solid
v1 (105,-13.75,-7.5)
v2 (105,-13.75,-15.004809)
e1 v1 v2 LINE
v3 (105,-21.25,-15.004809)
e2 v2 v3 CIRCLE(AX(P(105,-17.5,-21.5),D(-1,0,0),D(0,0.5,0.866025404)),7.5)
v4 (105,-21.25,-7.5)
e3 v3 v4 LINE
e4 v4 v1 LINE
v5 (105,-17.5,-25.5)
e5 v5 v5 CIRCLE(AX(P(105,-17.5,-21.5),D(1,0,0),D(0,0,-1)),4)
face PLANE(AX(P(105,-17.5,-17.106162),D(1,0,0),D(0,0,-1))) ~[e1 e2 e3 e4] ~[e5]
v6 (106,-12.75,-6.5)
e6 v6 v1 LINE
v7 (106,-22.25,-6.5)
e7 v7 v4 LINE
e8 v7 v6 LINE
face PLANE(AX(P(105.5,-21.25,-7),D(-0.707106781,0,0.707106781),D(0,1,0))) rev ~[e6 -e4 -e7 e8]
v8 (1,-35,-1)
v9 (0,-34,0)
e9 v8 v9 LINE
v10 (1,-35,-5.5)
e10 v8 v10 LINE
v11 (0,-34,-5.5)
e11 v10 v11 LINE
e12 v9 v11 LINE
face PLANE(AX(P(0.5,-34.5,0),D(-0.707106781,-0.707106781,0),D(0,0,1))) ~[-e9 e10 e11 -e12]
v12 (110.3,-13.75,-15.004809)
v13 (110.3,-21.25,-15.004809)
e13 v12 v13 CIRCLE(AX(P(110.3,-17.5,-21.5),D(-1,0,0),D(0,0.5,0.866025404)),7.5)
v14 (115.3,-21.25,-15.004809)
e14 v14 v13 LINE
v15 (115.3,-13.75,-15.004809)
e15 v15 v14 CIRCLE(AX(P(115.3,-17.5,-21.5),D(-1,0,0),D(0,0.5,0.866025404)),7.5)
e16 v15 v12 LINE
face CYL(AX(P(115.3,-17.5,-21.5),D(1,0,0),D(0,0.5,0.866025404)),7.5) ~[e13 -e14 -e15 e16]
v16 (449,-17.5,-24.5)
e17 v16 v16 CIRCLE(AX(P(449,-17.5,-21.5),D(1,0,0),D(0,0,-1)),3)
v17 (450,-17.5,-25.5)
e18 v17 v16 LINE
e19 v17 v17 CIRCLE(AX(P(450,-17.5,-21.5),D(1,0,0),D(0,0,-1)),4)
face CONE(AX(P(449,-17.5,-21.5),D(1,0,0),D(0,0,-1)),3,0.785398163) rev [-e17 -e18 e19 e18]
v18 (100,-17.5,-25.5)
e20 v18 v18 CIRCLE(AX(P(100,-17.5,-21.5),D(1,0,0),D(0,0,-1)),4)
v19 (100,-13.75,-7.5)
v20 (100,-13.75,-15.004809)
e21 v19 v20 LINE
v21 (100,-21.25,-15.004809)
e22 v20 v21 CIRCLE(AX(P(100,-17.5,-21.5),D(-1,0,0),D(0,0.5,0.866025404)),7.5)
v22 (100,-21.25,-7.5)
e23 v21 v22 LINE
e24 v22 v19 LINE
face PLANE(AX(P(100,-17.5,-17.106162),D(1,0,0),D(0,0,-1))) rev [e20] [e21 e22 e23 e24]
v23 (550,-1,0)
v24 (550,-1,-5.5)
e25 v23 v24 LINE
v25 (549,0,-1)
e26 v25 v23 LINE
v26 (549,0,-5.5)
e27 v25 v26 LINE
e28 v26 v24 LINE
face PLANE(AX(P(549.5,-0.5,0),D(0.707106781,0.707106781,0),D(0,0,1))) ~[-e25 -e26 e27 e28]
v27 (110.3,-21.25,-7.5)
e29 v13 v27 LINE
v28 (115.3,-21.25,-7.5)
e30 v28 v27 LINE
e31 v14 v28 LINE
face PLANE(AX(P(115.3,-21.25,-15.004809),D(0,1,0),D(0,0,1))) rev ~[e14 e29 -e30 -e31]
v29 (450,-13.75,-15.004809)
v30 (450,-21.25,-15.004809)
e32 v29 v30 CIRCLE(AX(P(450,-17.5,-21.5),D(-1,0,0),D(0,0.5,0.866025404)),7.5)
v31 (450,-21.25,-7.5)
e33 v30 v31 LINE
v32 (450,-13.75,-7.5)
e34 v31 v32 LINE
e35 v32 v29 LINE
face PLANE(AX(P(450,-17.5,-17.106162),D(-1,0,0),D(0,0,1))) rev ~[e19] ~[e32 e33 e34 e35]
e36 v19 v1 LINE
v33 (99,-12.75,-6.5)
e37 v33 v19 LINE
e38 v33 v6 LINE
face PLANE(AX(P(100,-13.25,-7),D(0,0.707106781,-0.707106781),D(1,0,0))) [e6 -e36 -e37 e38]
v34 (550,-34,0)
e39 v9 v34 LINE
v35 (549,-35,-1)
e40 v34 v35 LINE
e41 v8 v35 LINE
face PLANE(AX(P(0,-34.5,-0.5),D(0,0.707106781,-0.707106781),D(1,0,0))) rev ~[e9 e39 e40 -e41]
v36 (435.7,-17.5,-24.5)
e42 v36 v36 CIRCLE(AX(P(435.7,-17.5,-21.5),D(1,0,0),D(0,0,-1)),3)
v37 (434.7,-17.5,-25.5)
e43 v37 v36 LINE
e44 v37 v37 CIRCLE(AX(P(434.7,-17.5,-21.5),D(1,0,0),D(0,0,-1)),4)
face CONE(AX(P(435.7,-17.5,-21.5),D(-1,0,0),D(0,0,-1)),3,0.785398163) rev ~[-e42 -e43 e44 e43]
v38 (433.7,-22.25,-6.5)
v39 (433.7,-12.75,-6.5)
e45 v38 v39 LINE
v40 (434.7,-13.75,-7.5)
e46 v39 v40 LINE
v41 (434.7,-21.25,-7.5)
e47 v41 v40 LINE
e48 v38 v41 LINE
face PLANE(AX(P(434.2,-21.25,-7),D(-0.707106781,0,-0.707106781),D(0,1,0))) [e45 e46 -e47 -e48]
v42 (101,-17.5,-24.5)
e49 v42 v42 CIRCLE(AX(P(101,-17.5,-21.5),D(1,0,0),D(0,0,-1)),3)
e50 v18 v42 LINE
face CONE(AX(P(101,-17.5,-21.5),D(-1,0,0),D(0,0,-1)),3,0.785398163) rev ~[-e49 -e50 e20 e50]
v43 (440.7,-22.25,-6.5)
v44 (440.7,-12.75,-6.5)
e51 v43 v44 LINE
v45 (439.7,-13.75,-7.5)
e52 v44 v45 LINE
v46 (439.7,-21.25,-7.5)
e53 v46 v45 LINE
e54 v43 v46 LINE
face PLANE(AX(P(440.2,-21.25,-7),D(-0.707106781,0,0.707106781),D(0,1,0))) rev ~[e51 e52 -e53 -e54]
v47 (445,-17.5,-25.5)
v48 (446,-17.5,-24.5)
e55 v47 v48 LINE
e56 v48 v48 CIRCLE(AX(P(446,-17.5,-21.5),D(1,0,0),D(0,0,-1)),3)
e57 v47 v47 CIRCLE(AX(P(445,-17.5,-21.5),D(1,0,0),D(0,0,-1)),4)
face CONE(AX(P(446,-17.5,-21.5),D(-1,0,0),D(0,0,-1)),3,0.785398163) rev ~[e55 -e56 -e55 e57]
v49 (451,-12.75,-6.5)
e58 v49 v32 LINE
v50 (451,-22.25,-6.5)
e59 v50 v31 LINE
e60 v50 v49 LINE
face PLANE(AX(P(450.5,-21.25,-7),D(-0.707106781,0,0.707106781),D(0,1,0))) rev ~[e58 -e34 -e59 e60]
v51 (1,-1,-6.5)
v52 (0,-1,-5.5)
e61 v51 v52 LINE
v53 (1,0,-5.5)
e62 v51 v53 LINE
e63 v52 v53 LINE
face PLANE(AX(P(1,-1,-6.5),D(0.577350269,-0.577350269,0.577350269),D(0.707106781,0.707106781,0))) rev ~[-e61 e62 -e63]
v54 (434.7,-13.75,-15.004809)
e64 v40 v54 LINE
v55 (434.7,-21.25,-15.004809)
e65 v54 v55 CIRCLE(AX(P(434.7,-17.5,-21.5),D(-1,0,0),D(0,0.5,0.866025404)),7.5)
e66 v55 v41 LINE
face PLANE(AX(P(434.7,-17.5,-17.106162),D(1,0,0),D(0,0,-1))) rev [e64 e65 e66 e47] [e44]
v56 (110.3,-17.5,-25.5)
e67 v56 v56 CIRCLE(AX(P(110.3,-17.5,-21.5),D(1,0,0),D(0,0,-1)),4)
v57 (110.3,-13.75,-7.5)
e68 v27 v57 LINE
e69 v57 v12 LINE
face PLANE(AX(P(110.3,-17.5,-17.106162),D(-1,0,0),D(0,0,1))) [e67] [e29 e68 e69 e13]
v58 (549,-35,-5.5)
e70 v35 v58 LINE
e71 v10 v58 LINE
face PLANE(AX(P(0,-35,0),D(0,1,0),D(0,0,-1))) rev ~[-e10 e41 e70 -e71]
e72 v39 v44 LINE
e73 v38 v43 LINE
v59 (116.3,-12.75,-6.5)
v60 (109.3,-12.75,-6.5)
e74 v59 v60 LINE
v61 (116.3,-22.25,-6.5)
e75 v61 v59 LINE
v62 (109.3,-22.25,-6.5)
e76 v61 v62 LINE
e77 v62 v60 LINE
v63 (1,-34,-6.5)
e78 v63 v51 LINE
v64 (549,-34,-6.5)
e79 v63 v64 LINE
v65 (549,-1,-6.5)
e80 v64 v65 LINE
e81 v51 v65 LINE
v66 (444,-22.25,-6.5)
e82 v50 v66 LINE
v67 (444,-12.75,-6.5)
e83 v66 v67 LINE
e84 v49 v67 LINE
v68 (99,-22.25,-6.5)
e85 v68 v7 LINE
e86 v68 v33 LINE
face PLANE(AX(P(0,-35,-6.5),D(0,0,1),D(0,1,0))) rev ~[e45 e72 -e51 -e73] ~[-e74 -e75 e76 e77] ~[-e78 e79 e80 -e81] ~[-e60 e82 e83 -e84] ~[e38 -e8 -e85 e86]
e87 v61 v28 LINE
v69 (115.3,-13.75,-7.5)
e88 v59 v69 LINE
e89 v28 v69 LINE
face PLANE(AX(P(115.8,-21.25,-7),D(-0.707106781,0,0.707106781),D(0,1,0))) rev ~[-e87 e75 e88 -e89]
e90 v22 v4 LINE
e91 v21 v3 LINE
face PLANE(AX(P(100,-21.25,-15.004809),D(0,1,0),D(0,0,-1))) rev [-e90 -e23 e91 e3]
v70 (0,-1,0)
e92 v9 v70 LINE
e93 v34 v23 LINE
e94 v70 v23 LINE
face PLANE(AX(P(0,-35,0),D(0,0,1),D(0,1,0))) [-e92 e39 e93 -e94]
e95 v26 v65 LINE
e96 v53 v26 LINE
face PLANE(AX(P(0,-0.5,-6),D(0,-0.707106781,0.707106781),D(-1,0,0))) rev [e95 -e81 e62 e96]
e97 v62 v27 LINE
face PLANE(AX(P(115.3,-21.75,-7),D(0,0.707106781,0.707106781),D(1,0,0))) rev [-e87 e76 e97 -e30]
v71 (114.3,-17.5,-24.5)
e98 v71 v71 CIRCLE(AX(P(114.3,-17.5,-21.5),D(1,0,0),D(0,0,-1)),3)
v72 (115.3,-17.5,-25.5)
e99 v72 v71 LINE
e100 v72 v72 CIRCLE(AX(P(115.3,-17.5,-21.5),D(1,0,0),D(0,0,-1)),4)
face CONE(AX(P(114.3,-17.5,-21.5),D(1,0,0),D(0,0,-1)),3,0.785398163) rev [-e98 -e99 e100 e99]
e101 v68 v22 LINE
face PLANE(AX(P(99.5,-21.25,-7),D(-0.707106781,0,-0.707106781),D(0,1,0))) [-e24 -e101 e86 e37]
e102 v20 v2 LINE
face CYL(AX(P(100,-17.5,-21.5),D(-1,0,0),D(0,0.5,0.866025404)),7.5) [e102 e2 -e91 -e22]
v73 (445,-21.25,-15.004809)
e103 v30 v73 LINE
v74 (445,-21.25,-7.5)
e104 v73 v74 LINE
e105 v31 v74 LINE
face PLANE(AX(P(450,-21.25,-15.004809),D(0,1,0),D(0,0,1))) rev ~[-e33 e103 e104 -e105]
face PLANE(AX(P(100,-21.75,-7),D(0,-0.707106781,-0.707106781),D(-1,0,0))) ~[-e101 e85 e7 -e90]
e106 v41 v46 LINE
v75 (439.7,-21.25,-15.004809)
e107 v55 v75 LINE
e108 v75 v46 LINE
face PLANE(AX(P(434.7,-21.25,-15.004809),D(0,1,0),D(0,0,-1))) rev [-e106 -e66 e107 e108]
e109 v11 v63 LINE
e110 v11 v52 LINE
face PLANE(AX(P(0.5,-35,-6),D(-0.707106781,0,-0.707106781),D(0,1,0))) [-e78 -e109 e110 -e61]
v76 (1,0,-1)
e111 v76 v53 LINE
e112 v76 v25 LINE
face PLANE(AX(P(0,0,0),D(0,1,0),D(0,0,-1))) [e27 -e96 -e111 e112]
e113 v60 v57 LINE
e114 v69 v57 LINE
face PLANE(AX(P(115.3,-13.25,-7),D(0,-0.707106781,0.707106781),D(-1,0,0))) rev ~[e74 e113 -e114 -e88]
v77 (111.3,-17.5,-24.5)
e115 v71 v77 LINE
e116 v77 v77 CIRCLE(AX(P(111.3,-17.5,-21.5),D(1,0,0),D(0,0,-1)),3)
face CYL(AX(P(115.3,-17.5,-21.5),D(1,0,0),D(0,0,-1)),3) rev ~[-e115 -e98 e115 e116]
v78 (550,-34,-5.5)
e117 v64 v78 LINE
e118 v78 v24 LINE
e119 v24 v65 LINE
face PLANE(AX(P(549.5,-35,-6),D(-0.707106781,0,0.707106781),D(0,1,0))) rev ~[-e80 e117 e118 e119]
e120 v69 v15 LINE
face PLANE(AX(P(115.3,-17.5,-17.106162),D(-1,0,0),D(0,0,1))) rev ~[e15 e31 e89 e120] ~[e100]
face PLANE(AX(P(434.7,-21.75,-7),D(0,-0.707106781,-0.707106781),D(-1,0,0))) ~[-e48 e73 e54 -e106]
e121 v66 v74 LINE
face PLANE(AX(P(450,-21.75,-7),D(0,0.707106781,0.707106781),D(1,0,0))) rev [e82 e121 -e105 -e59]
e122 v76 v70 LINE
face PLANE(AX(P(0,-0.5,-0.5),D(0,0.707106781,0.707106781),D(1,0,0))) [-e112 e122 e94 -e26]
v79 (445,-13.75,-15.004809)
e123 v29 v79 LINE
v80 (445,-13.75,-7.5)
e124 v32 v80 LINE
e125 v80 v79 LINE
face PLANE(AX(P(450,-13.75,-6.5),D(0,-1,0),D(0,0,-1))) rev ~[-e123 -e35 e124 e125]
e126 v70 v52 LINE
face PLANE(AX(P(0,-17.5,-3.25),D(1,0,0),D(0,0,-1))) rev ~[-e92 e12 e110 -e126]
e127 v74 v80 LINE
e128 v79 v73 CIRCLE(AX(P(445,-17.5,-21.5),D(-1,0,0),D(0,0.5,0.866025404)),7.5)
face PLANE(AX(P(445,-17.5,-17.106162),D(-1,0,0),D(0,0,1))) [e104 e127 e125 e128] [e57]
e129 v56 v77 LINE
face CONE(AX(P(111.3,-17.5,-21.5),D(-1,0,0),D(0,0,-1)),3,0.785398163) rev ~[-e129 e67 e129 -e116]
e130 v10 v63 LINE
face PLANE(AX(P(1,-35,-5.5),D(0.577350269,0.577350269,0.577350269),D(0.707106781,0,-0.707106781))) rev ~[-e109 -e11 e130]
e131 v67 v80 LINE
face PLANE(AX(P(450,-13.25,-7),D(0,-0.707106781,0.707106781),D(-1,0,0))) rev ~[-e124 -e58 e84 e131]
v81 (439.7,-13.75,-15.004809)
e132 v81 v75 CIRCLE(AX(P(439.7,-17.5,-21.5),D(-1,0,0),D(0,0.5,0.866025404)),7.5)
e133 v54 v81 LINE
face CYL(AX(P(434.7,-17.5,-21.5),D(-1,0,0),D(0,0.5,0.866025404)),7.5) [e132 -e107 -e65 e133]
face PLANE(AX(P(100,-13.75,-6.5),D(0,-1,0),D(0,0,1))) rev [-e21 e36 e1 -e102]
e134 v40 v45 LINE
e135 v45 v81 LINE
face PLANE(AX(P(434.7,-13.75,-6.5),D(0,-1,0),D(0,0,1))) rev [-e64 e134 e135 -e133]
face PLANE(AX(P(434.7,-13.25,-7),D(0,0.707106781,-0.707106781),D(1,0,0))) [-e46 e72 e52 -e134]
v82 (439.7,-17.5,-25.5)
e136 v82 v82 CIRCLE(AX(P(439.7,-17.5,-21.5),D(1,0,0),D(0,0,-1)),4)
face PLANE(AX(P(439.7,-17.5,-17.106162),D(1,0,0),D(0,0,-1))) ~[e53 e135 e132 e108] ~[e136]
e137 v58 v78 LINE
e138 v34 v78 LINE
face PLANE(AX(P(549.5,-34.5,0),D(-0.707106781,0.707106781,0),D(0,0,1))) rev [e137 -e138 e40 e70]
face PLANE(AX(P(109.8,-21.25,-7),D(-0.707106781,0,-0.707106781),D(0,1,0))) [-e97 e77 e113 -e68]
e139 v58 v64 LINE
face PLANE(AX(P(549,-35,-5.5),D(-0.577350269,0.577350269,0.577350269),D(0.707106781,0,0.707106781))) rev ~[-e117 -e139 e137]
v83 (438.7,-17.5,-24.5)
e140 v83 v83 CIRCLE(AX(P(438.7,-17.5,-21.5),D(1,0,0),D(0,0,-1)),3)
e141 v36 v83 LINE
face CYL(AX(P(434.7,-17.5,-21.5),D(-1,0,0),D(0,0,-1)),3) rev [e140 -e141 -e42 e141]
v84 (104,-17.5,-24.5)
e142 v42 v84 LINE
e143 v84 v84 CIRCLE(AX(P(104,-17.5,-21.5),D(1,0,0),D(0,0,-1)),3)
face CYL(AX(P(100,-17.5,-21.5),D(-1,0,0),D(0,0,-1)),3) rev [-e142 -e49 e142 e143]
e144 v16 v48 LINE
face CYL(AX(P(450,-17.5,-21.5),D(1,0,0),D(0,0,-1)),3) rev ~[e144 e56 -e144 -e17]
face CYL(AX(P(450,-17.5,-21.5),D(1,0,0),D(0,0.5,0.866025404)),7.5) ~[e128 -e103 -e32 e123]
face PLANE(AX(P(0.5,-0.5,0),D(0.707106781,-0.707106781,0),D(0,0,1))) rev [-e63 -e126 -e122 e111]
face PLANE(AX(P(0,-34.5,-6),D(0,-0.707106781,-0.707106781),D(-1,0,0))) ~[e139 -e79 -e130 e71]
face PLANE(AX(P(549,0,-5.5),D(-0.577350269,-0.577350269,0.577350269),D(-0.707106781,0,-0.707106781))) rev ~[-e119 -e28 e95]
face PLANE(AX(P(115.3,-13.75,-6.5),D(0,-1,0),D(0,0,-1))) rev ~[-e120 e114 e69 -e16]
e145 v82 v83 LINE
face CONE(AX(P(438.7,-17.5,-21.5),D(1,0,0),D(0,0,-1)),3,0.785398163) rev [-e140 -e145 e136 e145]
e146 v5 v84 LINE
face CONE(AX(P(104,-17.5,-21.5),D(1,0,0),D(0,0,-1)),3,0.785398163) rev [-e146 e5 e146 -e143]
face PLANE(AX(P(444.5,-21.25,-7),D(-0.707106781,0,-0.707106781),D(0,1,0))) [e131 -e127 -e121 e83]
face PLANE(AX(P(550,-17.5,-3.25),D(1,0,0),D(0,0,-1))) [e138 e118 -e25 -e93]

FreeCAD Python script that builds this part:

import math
import FreeCAD as App
import Part
import Sketcher

V = App.Vector


def edges_at(feature, points):
    """Names of the edges that pass closest to the given points."""
    edges = feature.Shape.Edges
    near = lambda p: min(range(len(edges)), key=lambda i: edges[i].distToShape(Part.Vertex(*p))[0])
    return sorted({f"Edge{near(p) + 1}" for p in points})


def add_polygon(sketch, points):
    """Adds a closed chain of lines whose ends are joined by coincident constraints."""
    first, n = sketch.GeometryCount, len(points)
    for a, b in zip(points, points[1:] + points[:1]):
        sketch.addGeometry(Part.LineSegment(App.Vector(*a, 0), App.Vector(*b, 0)), False)
    for i in range(n):
        sketch.addConstraint(Sketcher.Constraint("Coincident", first + i, 2, first + (i + 1) % n, 1))

doc = App.newDocument("Part")
params = doc.addObject("Spreadsheet::Sheet", "Params")
for row, (alias, value) in enumerate([
    ("sketch1_width", "35 mm"),
    ("sketch1_height", "6.5 mm"),
    ("pad1_length", "550 mm"),
    ("sketch2_diameter", "6 mm"),
    ("sketch2_radius", "7.5 mm"),
    ("sketch2_width", "7.5 mm"),
    ("pad2_length", "5 mm"),
    ("sketch3_diameter", "6 mm"),
    ("sketch3_radius", "7.5 mm"),
    ("sketch3_width", "7.5 mm"),
    ("pad3_length", "5 mm"),
    ("chamfer_size", "1 mm"),
    ("chamfer2_size", "1 mm"),
], start=1):
    params.set(f"A{row}", alias)
    params.set(f"B{row}", "=" + value)
    params.setAlias(f"B{row}", alias)

body = doc.addObject("PartDesign::Body", "Body")

# Sketch on YZ plane
sketch1 = body.newObject("Sketcher::SketchObject", "Sketch")
sketch1.AttachmentSupport = (doc.getObject("YZ_Plane"), [""])
sketch1.MapMode = "FlatFace"
add_polygon(sketch1, [(0, 0), (-35, 0), (-35, -6), (0, -6)])  # lines 0-3
sketch1.addConstraint([
    Sketcher.Constraint("Horizontal", 0),
    Sketcher.Constraint("Vertical", 1),
    Sketcher.Constraint("Horizontal", 2),
    Sketcher.Constraint("Vertical", 3),
    Sketcher.Constraint("Coincident", 3, 2, -1, 1),
    Sketcher.Constraint("DistanceX", 0, 2, 0, 1, 35.0),
    Sketcher.Constraint("DistanceY", 1, 2, 1, 1, 6.5),
])
sketch1.setExpression("Constraints[9]", "Params.sketch1_width")
sketch1.setExpression("Constraints[10]", "Params.sketch1_height")
pad1 = body.newObject("PartDesign::Pad", "Pad")
pad1.Profile = sketch1
pad1.setExpression("Length", "Params.pad1_length")

# Sketch on YZ plane
sketch2 = body.newObject("Sketcher::SketchObject", "Sketch001")
sketch2.AttachmentSupport = (doc.getObject("YZ_Plane"), [""])
sketch2.MapMode = "FlatFace"
sketch2.AttachmentOffset = App.Placement(V(0, 0, 450), App.Rotation())
sketch2.addGeometry([
    Part.LineSegment(V(-13.8, -6.5, 0), V(-21.2, -6.5, 0)),  # 0
    Part.LineSegment(V(-21.2, -6.5, 0), V(-21.2, -15, 0)),  # 1
    Part.ArcOfCircle(Part.Circle(V(-17.5, -21.5, 0), V(0, 0, 1), 7.5), math.radians(120), math.radians(420)),  # 2
    Part.LineSegment(V(-13.8, -15, 0), V(-13.8, -6.5, 0)),  # 3
    Part.Circle(V(-17.5, -21.5, 0), V(0, 0, 1), 3),  # 4
], False)
sketch2.addConstraint([
    Sketcher.Constraint("Coincident", 0, 2, 1, 1),
    Sketcher.Constraint("Coincident", 1, 2, 2, 1),
    Sketcher.Constraint("Coincident", 2, 2, 3, 1),
    Sketcher.Constraint("Coincident", 3, 2, 0, 1),
    Sketcher.Constraint("Horizontal", 0),
    Sketcher.Constraint("Vertical", 1),
    Sketcher.Constraint("Vertical", 3),
    Sketcher.Constraint("Coincident", 4, 3, 2, 3),
    Sketcher.Constraint("Horizontal", 1, 2, 2, 2),
    Sketcher.Constraint("Diameter", 4, 6.0),
    Sketcher.Constraint("Radius", 2, 7.5),
    Sketcher.Constraint("DistanceX", 0, 2, 0, 1, 7.5),
    Sketcher.Constraint("DistanceY", 2, 3, 0, 2, 15.0),
    Sketcher.Constraint("DistanceX", 2, 3, -1, 1, 17.5),
    Sketcher.Constraint("DistanceY", 2, 3, -1, 1, 21.5),
])
sketch2.setExpression("Constraints[9]", "Params.sketch2_diameter")
sketch2.setExpression("Constraints[10]", "Params.sketch2_radius")
sketch2.setExpression("Constraints[11]", "Params.sketch2_width")
pad2 = body.newObject("PartDesign::Pad", "Pad001")
pad2.Profile = sketch2
pad2.setExpression("Length", "Params.pad2_length")
pad2.Reversed = True
doc.recompute()

datumplane = body.newObject("PartDesign::Plane", "DatumPlane")
datumplane.AttachmentSupport = (doc.getObject("YZ_Plane"), [""])
datumplane.MapMode = "FlatFace"
datumplane.AttachmentOffset = App.Placement(V(0, 0, 442.35), App.Rotation())
mirrored = body.newObject("PartDesign::Mirrored", "Mirrored")
mirrored.Originals = [pad2]
mirrored.MirrorPlane = (datumplane, [""])
body.Tip = mirrored
doc.recompute()

datumplane2 = body.newObject("PartDesign::Plane", "DatumPlane001")
datumplane2.AttachmentSupport = (doc.getObject("YZ_Plane"), [""])
datumplane2.MapMode = "FlatFace"
datumplane2.AttachmentOffset = App.Placement(V(0, 0, 275), App.Rotation())
mirrored2 = body.newObject("PartDesign::Mirrored", "Mirrored001")
mirrored2.Originals = [pad2]
mirrored2.MirrorPlane = (datumplane2, [""])
body.Tip = mirrored2

# Sketch on YZ plane
sketch3 = body.newObject("Sketcher::SketchObject", "Sketch002")
sketch3.AttachmentSupport = (doc.getObject("YZ_Plane"), [""])
sketch3.MapMode = "FlatFace"
sketch3.AttachmentOffset = App.Placement(V(0, 0, 115.3), App.Rotation())
sketch3.addGeometry([
    Part.LineSegment(V(-13.8, -6.5, 0), V(-21.2, -6.5, 0)),  # 0
    Part.LineSegment(V(-21.2, -6.5, 0), V(-21.2, -15, 0)),  # 1
    Part.ArcOfCircle(Part.Circle(V(-17.5, -21.5, 0), V(0, 0, 1), 7.5), math.radians(120), math.radians(420)),  # 2
    Part.LineSegment(V(-13.8, -15, 0), V(-13.8, -6.5, 0)),  # 3
    Part.Circle(V(-17.5, -21.5, 0), V(0, 0, 1), 3),  # 4
], False)
sketch3.addConstraint([
    Sketcher.Constraint("Coincident", 0, 2, 1, 1),
    Sketcher.Constraint("Coincident", 1, 2, 2, 1),
    Sketcher.Constraint("Coincident", 2, 2, 3, 1),
    Sketcher.Constraint("Coincident", 3, 2, 0, 1),
    Sketcher.Constraint("Horizontal", 0),
    Sketcher.Constraint("Vertical", 1),
    Sketcher.Constraint("Vertical", 3),
    Sketcher.Constraint("Coincident", 4, 3, 2, 3),
    Sketcher.Constraint("Horizontal", 1, 2, 2, 2),
    Sketcher.Constraint("Diameter", 4, 6.0),
    Sketcher.Constraint("Radius", 2, 7.5),
    Sketcher.Constraint("DistanceX", 0, 2, 0, 1, 7.5),
    Sketcher.Constraint("DistanceY", 2, 3, 0, 2, 15.0),
    Sketcher.Constraint("DistanceX", 2, 3, -1, 1, 17.5),
    Sketcher.Constraint("DistanceY", 2, 3, -1, 1, 21.5),
])
sketch3.setExpression("Constraints[9]", "Params.sketch3_diameter")
sketch3.setExpression("Constraints[10]", "Params.sketch3_radius")
sketch3.setExpression("Constraints[11]", "Params.sketch3_width")
pad3 = body.newObject("PartDesign::Pad", "Pad002")
pad3.Profile = sketch3
pad3.setExpression("Length", "Params.pad3_length")
pad3.Reversed = True
doc.recompute()

chamfer = body.newObject("PartDesign::Chamfer", "Chamfer")
chamfer.Base = (pad3, edges_at(pad3, [
    (550, -17.5, -6.5),
    (550, 0, -3.25),
    (445, -17.5, -6.5),
    (447.5, -21.25, -6.5),
    (447.5, -13.75, -6.5),
    (445, -17.5, -18.5),
    (450, -17.5, -6.5),
    (450, -17.5, -18.5),
    (439.7, -17.5, -6.5),
    (434.7, -17.5, -18.5),
    (434.7, -17.5, -6.5),
    (437.2, -13.75, -6.5),
    (437.2, -21.25, -6.5),
    (439.7, -17.5, -18.5),
    (105, -17.5, -6.5),
    (100, -17.5, -6.5),
    (0, 0, -3.25),
    (102.5, -13.75, -6.5),
    (102.5, -21.25, -6.5),
    (0, -17.5, -6.5),
    (0, -35, -3.25),
    (110.3, -17.5, -6.5),
    (112.8, -21.25, -6.5),
    (112.8, -13.75, -6.5),
    (115.3, -17.5, -6.5),
    (275, 0, 0),
    (275, 0, -6.5),
    (275, -35, -6.5),
    (275, -35, 0),
    (550, -35, -3.25),
]))
chamfer.setExpression("Size", "Params.chamfer_size")
doc.recompute()

chamfer2 = body.newObject("PartDesign::Chamfer", "Chamfer001")
chamfer2.Base = (chamfer, edges_at(chamfer, [
    (100, -17.5, -18.5),
    (105, -17.5, -18.5),
    (110.3, -17.5, -18.5),
    (115.3, -17.5, -18.5),
]))
chamfer2.setExpression("Size", "Params.chamfer2_size")

doc.recompute()
